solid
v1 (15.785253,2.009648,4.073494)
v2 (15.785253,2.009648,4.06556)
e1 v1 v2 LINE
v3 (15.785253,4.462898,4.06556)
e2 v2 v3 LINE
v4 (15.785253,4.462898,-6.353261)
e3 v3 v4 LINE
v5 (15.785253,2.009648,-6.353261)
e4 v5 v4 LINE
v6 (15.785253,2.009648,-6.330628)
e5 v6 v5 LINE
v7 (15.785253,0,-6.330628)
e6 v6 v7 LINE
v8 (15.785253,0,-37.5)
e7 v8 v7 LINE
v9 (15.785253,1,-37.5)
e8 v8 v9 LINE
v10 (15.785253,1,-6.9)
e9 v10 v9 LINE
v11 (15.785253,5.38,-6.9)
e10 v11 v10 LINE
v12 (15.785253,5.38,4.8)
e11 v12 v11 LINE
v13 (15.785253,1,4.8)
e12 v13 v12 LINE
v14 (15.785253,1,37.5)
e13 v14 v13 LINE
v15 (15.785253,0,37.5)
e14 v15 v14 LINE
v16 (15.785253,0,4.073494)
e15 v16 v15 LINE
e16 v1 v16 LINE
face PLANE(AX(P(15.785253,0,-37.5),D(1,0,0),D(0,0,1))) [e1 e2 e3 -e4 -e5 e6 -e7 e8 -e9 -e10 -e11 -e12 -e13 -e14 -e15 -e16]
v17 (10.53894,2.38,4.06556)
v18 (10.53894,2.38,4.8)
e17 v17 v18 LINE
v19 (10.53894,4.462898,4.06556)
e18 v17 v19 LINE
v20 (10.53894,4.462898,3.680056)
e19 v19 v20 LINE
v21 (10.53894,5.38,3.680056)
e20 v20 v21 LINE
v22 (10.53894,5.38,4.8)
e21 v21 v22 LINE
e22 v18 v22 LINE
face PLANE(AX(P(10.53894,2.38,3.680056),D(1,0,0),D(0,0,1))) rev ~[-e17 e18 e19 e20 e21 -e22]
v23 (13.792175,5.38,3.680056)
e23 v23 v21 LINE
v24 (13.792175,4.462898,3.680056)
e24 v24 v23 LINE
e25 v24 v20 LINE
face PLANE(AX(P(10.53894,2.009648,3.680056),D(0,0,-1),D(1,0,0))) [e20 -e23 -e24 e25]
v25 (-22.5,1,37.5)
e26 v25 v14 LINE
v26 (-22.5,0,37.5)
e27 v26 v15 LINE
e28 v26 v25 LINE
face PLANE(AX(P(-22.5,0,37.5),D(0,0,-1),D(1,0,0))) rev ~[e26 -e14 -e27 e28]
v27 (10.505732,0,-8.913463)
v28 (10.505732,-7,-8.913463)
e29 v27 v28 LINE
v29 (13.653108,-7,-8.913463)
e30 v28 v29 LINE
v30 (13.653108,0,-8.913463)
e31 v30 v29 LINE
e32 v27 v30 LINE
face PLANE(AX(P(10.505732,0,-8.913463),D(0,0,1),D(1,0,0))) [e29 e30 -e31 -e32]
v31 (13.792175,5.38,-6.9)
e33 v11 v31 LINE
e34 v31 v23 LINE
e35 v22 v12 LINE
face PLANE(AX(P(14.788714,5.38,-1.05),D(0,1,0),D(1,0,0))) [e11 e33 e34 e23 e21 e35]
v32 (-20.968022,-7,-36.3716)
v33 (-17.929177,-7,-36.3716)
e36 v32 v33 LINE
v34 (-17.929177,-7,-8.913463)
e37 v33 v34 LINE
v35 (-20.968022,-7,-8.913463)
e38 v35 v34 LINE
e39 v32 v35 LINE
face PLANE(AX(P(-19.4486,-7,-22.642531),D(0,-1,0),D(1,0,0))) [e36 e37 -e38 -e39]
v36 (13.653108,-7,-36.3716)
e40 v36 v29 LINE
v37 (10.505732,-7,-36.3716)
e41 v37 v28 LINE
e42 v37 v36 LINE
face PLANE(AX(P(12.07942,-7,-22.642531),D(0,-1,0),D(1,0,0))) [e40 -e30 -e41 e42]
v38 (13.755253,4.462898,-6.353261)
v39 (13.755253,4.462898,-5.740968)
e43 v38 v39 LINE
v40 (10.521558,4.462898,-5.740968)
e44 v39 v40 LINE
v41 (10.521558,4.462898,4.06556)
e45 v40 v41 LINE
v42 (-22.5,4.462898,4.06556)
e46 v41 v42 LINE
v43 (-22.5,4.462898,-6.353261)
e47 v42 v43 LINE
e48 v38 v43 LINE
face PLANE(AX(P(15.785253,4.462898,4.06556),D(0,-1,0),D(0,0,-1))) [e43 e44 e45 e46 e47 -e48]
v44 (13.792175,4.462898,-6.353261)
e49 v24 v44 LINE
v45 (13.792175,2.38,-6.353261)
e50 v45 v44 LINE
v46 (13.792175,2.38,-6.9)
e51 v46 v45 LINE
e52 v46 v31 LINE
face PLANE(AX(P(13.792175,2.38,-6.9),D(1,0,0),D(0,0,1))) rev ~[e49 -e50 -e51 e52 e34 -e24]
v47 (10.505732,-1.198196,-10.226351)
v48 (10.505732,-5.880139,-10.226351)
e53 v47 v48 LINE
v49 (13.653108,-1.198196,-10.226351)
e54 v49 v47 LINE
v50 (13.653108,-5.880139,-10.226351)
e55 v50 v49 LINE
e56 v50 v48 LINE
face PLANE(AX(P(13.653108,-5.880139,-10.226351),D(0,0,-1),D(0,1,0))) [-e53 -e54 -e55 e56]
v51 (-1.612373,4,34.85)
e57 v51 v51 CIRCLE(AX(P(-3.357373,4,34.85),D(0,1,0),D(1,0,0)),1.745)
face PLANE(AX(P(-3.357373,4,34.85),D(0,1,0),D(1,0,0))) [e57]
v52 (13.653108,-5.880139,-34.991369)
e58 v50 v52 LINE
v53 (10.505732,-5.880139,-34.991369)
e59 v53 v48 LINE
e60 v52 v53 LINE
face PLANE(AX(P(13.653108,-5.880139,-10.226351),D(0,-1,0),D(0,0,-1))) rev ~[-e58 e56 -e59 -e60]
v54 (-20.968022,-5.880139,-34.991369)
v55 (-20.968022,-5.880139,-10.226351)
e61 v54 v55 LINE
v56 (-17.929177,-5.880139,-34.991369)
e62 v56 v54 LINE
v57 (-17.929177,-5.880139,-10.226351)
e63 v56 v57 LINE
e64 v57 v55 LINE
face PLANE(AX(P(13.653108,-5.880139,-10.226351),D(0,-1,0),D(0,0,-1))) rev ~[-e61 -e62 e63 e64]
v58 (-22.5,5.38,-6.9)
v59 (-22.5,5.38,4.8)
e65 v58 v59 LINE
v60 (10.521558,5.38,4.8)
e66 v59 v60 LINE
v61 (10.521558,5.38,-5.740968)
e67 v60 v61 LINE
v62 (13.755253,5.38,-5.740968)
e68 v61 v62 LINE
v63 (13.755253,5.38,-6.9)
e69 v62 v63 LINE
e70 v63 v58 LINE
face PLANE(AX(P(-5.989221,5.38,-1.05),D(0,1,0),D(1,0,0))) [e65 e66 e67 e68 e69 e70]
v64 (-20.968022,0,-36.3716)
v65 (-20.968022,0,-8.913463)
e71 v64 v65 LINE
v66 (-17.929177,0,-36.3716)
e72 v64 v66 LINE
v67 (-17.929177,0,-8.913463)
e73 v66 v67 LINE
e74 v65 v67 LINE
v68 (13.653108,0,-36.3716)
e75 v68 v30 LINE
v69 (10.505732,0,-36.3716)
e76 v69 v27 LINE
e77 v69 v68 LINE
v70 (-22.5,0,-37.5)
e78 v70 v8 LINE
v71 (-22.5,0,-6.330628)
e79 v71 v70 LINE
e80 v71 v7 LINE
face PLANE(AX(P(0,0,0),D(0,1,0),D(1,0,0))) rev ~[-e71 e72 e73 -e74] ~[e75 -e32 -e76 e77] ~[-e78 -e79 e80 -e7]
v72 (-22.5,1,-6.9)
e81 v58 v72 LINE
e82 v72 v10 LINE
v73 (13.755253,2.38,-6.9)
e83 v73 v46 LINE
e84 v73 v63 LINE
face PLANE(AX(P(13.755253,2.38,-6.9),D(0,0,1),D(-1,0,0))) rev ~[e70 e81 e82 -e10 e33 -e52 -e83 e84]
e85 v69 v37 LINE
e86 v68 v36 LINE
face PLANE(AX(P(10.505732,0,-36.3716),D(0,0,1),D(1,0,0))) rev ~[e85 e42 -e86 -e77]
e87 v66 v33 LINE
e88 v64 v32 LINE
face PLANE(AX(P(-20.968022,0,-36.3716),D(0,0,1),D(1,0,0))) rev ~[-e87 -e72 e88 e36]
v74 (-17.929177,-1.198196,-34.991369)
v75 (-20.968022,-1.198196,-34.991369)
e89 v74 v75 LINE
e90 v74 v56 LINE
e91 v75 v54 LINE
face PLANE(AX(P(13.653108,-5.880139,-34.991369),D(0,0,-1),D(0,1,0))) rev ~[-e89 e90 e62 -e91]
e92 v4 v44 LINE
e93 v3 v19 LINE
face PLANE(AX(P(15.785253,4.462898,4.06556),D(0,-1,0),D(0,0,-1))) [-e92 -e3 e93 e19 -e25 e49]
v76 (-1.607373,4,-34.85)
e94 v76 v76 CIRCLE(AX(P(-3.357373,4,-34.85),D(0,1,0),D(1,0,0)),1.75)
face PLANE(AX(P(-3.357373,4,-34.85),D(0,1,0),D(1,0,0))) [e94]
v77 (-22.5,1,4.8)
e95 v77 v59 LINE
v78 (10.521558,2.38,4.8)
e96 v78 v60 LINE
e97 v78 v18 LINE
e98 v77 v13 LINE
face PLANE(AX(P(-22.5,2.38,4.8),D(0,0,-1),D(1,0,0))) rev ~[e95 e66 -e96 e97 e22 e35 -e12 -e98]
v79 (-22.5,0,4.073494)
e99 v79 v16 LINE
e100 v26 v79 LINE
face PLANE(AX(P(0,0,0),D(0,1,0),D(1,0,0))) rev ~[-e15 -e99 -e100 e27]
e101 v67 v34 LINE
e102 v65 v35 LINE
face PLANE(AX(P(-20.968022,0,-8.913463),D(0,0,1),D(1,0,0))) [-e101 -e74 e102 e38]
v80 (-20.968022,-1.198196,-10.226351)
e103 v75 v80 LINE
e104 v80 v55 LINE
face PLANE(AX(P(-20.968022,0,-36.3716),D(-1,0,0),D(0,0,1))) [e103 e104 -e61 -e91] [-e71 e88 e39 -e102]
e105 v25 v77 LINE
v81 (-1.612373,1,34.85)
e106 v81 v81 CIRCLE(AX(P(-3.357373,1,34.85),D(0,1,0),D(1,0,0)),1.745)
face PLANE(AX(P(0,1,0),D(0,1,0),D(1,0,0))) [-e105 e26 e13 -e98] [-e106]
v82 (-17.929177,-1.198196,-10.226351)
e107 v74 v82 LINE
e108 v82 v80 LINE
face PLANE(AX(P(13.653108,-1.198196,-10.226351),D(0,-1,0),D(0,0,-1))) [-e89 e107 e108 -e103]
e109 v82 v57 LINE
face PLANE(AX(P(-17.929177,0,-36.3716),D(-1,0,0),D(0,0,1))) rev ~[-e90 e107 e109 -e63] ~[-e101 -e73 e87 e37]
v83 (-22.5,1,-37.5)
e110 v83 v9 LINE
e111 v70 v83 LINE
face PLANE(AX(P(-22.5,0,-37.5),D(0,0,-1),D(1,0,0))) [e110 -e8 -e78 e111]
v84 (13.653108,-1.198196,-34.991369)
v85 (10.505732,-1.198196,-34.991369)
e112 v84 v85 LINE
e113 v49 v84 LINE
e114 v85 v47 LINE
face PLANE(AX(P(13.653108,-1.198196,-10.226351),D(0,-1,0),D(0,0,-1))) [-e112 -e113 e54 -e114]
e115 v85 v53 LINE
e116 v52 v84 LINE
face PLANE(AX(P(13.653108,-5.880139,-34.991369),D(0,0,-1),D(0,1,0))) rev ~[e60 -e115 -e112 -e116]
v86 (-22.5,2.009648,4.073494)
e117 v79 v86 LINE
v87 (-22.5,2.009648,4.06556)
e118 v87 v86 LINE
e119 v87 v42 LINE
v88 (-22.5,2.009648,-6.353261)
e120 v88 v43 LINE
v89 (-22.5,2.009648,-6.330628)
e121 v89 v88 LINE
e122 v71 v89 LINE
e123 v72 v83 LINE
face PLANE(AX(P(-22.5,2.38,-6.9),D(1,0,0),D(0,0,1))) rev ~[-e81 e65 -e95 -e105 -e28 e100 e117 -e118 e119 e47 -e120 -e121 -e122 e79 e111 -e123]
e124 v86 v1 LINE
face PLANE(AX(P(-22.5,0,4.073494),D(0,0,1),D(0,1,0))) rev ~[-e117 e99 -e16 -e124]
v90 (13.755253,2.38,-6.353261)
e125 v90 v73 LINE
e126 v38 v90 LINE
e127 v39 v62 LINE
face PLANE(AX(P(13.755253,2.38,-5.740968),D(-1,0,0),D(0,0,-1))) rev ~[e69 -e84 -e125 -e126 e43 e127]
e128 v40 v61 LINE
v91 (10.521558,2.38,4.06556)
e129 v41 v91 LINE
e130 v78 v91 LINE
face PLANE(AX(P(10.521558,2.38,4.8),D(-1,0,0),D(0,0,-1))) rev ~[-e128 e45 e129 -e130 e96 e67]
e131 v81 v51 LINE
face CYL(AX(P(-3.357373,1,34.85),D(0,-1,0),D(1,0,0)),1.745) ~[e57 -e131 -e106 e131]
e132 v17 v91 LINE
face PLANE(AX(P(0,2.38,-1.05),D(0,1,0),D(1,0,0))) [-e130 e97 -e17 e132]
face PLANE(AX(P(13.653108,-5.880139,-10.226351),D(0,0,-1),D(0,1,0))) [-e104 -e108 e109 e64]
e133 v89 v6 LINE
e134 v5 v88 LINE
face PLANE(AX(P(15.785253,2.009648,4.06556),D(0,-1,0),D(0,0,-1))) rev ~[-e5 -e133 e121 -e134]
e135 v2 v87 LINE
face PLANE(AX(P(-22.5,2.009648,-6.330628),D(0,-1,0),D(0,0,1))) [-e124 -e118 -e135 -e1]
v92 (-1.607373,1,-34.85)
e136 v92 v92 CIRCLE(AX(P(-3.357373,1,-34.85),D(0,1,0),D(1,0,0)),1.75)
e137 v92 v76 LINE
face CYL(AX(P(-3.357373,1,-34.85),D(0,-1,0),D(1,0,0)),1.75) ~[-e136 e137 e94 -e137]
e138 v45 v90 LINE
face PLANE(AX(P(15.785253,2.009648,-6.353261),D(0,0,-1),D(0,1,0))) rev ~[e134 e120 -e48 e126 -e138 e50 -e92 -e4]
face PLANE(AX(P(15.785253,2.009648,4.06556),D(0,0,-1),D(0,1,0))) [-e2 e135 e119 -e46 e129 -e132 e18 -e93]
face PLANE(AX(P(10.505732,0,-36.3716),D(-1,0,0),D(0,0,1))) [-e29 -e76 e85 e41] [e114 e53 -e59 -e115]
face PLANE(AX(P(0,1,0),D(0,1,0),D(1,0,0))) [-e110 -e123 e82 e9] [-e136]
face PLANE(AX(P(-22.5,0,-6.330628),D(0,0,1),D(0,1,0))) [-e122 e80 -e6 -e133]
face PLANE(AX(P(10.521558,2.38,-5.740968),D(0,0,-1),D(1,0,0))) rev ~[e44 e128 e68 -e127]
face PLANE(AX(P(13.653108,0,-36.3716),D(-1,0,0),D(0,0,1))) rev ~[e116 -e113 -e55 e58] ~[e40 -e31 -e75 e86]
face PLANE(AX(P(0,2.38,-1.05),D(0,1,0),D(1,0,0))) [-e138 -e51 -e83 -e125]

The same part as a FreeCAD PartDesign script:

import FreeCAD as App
import Part
import Sketcher
from FreeCAD import Vector


def add_polygon(sketch, points):
    """Adds a closed chain of lines whose ends are joined by coincident constraints."""
    first, n = sketch.GeometryCount, len(points)
    for a, b in zip(points, points[1:] + points[:1]):
        sketch.addGeometry(Part.LineSegment(App.Vector(*a, 0), App.Vector(*b, 0)), False)
    for i in range(n):
        sketch.addConstraint(Sketcher.Constraint("Coincident", first + i, 2, first + (i + 1) % n, 1))

doc = App.newDocument("Part")
body = doc.addObject("PartDesign::Body", "Body")

# Sketch on XZ plane
sketch1 = doc.addObject("Sketcher::SketchObject", "Sketch")
body.addObject(sketch1)
sketch1.AttachmentSupport = (doc.XZ_Plane, [""])
sketch1.MapMode = "FlatFace"
add_polygon(sketch1, [(-22, -38), (-22, 38), (22, 38), (22, -38)])  # lines 0-3
sketch1.addConstraint(Sketcher.Constraint("Vertical", 0))
sketch1.addConstraint(Sketcher.Constraint("Horizontal", 1))
sketch1.addConstraint(Sketcher.Constraint("Vertical", 2))
sketch1.addConstraint(Sketcher.Constraint("Horizontal", 3))
sketch1.addConstraint(Sketcher.Constraint("Symmetric", 0, 2, 2, 2, -1, 1))
sketch1.addConstraint(Sketcher.Constraint("DistanceX", 1, 1, 1, 2, 45.0))
sketch1.addConstraint(Sketcher.Constraint("DistanceY", 0, 1, 0, 2, 75.0))
pad1 = doc.addObject("PartDesign::Pad", "Pad")
body.addObject(pad1)
pad1.Profile = sketch1
pad1.Length = 1
pad1.Reversed = True

# Sketch on XZ plane
sketch2 = doc.addObject("Sketcher::SketchObject", "Sketch001")
body.addObject(sketch2)
sketch2.AttachmentSupport = (doc.XZ_Plane, [""])
sketch2.MapMode = "FlatFace"
sketch2.AttachmentOffset = App.Placement(Vector(0, 0, -1), App.Rotation())
add_polygon(sketch2, [(-22, -7), (-22, 5), (22, 5), (22, -7)])  # lines 0-3
sketch2.addConstraint(Sketcher.Constraint("Vertical", 0))
sketch2.addConstraint(Sketcher.Constraint("Horizontal", 1))
sketch2.addConstraint(Sketcher.Constraint("Vertical", 2))
sketch2.addConstraint(Sketcher.Constraint("Horizontal", 3))
sketch2.addConstraint(Sketcher.Constraint("DistanceX", 1, 1, 1, 2, 45.0))
sketch2.addConstraint(Sketcher.Constraint("DistanceY", 0, 1, 0, 2, 11.7))
sketch2.addConstraint(Sketcher.Constraint("DistanceX", 0, 2, -1, 1, 22.5))
sketch2.addConstraint(Sketcher.Constraint("DistanceY", -1, 1, 0, 2, 4.8))
pad2 = doc.addObject("PartDesign::Pad", "Pad001")
body.addObject(pad2)
pad2.Profile = sketch2
pad2.Length = 1.38
pad2.Reversed = True

# Sketch on XZ plane
sketch3 = doc.addObject("Sketcher::SketchObject", "Sketch002")
body.addObject(sketch3)
sketch3.AttachmentSupport = (doc.XZ_Plane, [""])
sketch3.MapMode = "FlatFace"
add_polygon(sketch3, [(16, 38), (16, -38), (22, -38), (22, 38)])  # lines 0-3
sketch3.addConstraint(Sketcher.Constraint("Vertical", 0))
sketch3.addConstraint(Sketcher.Constraint("Horizontal", 1))
sketch3.addConstraint(Sketcher.Constraint("Vertical", 2))
sketch3.addConstraint(Sketcher.Constraint("Horizontal", 3))
sketch3.addConstraint(Sketcher.Constraint("DistanceY", 0, 2, 0, 1, 75.0))
sketch3.addConstraint(Sketcher.Constraint("DistanceY", 0, 2, -1, 1, 37.5))
sketch3.addConstraint(Sketcher.Constraint("DistanceX", -1, 1, 1, 2, 22.5))
sketch3.addConstraint(Sketcher.Constraint("DistanceX", 1, 1, 1, 2, 6.714747))
pocket1 = doc.addObject("PartDesign::Pocket", "Pocket")
body.addObject(pocket1)
pocket1.Profile = sketch3
pocket1.Length = 38.3

# Sketch on XZ plane
sketch4 = doc.addObject("Sketcher::SketchObject", "Sketch003")
body.addObject(sketch4)
sketch4.AttachmentSupport = (doc.XZ_Plane, [""])
sketch4.MapMode = "FlatFace"
sketch4.AttachmentOffset = App.Placement(Vector(0, 0, -1), App.Rotation())
sketch4.addGeometry(Part.Circle(Vector(-3.4, -34.9, 0), Vector(0, 0, 1), 1.8), False)
sketch4.addGeometry(Part.Circle(Vector(-3.4, 34.9, 0), Vector(0, 0, 1), 1.7), False)
sketch4.addConstraint(Sketcher.Constraint("Symmetric", 0, 3, 1, 3, -1))
sketch4.addConstraint(Sketcher.Constraint("Diameter", 0, 3.5))
sketch4.addConstraint(Sketcher.Constraint("Diameter", 1, 3.49))
sketch4.addConstraint(Sketcher.Constraint("DistanceY", 0, 3, 1, 3, 69.7))
sketch4.addConstraint(Sketcher.Constraint("DistanceX", 0, 3, -1, 1, 3.357373))
pad3 = doc.addObject("PartDesign::Pad", "Pad002")
body.addObject(pad3)
pad3.Profile = sketch4
pad3.Length = 3
pad3.Reversed = True

# Sketch on YZ plane
sketch5 = doc.addObject("Sketcher::SketchObject", "Sketch004")
body.addObject(sketch5)
sketch5.AttachmentSupport = (doc.YZ_Plane, [""])
sketch5.MapMode = "FlatFace"
sketch5.AttachmentOffset = App.Placement(Vector(0, 0, -22.5), App.Rotation())
add_polygon(sketch5, [(2, -6.3), (0, -6.3), (0, 4.1), (2, 4.1)])  # lines 0-3
sketch5.addConstraint(Sketcher.Constraint("Horizontal", 0))
sketch5.addConstraint(Sketcher.Constraint("Vertical", 1))
sketch5.addConstraint(Sketcher.Constraint("Horizontal", 2))
sketch5.addConstraint(Sketcher.Constraint("Vertical", 3))
sketch5.addConstraint(Sketcher.Constraint("PointOnObject", 0, 2, -2))
sketch5.addConstraint(Sketcher.Constraint("DistanceX", 0, 2, 0, 1, 2.009648))
sketch5.addConstraint(Sketcher.Constraint("DistanceY", 1, 1, 1, 2, 10.404122))
sketch5.addConstraint(Sketcher.Constraint("DistanceY", 0, 2, -1, 1, 6.330628))
pocket2 = doc.addObject("PartDesign::Pocket", "Pocket001")
body.addObject(pocket2)
pocket2.Profile = sketch5
pocket2.Length = 40
pocket2.Reversed = True

# Sketch on XZ plane
sketch6 = doc.addObject("Sketcher::SketchObject", "Sketch005")
body.addObject(sketch6)
sketch6.AttachmentSupport = (doc.XZ_Plane, [""])
sketch6.MapMode = "FlatFace"
sketch6.AttachmentOffset = App.Placement(Vector(0, 0, -2.009648), App.Rotation())
add_polygon(sketch6, [(10.5, 3.7), (10.5, -5.7), (13.8, -5.7), (13.8, 3.7)])  # lines 0-3
sketch6.addConstraint(Sketcher.Constraint("Vertical", 0))
sketch6.addConstraint(Sketcher.Constraint("Horizontal", 1))
sketch6.addConstraint(Sketcher.Constraint("Vertical", 2))
sketch6.addConstraint(Sketcher.Constraint("Horizontal", 3))
sketch6.addConstraint(Sketcher.Constraint("DistanceX", 1, 1, 1, 2, 3.216313))
sketch6.addConstraint(Sketcher.Constraint("DistanceY", 0, 2, 0, 1, 9.421023))
sketch6.addConstraint(Sketcher.Constraint("DistanceX", -1, 1, 0, 2, 10.53894))
sketch6.addConstraint(Sketcher.Constraint("DistanceY", 0, 2, -1, 1, 5.740968))
pocket3 = doc.addObject("PartDesign::Pocket", "Pocket002")
body.addObject(pocket3)
pocket3.Profile = sketch6
pocket3.Length = 10

# Sketch on XZ plane
sketch7 = doc.addObject("Sketcher::SketchObject", "Sketch006")
body.addObject(sketch7)
sketch7.AttachmentSupport = (doc.XZ_Plane, [""])
sketch7.MapMode = "FlatFace"
add_polygon(sketch7, [(10.5, -8.9), (10.5, -36.4), (13.7, -36.4), (13.7, -8.9)])  # lines 0-3
add_polygon(sketch7, [(-21, -8.9), (-21, -36.4), (-17.9, -36.4), (-17.9, -8.9)])  # lines 4-7
sketch7.addConstraint(Sketcher.Constraint("Vertical", 0))
sketch7.addConstraint(Sketcher.Constraint("Horizontal", 1))
sketch7.addConstraint(Sketcher.Constraint("Vertical", 2))
sketch7.addConstraint(Sketcher.Constraint("Horizontal", 3))
sketch7.addConstraint(Sketcher.Constraint("Vertical", 4))
sketch7.addConstraint(Sketcher.Constraint("Horizontal", 5))
sketch7.addConstraint(Sketcher.Constraint("Vertical", 6))
sketch7.addConstraint(Sketcher.Constraint("Horizontal", 7))
sketch7.addConstraint(Sketcher.Constraint("Horizontal", 1, 2, 4, 2))
sketch7.addConstraint(Sketcher.Constraint("Horizontal", 3, 2, 6, 2))
sketch7.addConstraint(Sketcher.Constraint("DistanceY", 0, 2, -1, 1, 36.3716))
sketch7.addConstraint(Sketcher.Constraint("DistanceX", 1, 1, 1, 2, 3.147375))
sketch7.addConstraint(Sketcher.Constraint("DistanceX", 5, 1, 5, 2, 3.038845))
sketch7.addConstraint(Sketcher.Constraint("DistanceY", 0, 2, 0, 1, 27.458137))
sketch7.addConstraint(Sketcher.Constraint("DistanceX", 4, 2, 1, 2, 34.62113))
sketch7.addConstraint(Sketcher.Constraint("DistanceX", -1, 1, 0, 2, 10.505732))
pad4 = doc.addObject("PartDesign::Pad", "Pad003")
body.addObject(pad4)
pad4.Profile = sketch7
pad4.Length = 7

# Sketch on YZ plane
sketch8 = doc.addObject("Sketcher::SketchObject", "Sketch007")
body.addObject(sketch8)
sketch8.AttachmentSupport = (doc.YZ_Plane, [""])
sketch8.MapMode = "FlatFace"
sketch8.AttachmentOffset = App.Placement(Vector(0, 0, 13.653108), App.Rotation())
add_polygon(sketch8, [(-1.2, -10.2), (-5.9, -10.2), (-5.9, -35), (-1.2, -35)])  # lines 0-3
sketch8.addConstraint(Sketcher.Constraint("Horizontal", 0))
sketch8.addConstraint(Sketcher.Constraint("Vertical", 1))
sketch8.addConstraint(Sketcher.Constraint("Horizontal", 2))
sketch8.addConstraint(Sketcher.Constraint("Vertical", 3))
sketch8.addConstraint(Sketcher.Constraint("DistanceY", 1, 2, 1, 1, 24.765018))
sketch8.addConstraint(Sketcher.Constraint("DistanceX", 0, 2, 0, 1, 4.681944))
sketch8.addConstraint(Sketcher.Constraint("DistanceX", 0, 2, -1, 1, 5.880139))
sketch8.addConstraint(Sketcher.Constraint("DistanceY", 0, 2, -1, 1, 10.226351))
pocket4 = doc.addObject("PartDesign::Pocket", "Pocket003")
body.addObject(pocket4)
pocket4.Profile = sketch8
pocket4.Length = 47

# Sketch on XZ plane
sketch9 = doc.addObject("Sketcher::SketchObject", "Sketch008")
body.addObject(sketch9)
sketch9.AttachmentSupport = (doc.XZ_Plane, [""])
sketch9.MapMode = "FlatFace"
sketch9.AttachmentOffset = App.Placement(Vector(0, 0, -2.38), App.Rotation())
add_polygon(sketch9, [(-22.5, -6.9), (-22.5, 4.8), (10.5, 4.8), (10.5, -5.7), (13.8, -5.7), (13.8, -6.9)])  # lines 0-5
add_polygon(sketch9, [(15.8, -6.9), (13.8, -6.9), (13.8, 3.7), (10.5, 3.7), (10.5, 4.8), (15.8, 4.8)])  # lines 6-11
sketch9.addConstraint(Sketcher.Constraint("Vertical", 0))
sketch9.addConstraint(Sketcher.Constraint("Horizontal", 1))
sketch9.addConstraint(Sketcher.Constraint("Vertical", 2))
sketch9.addConstraint(Sketcher.Constraint("Horizontal", 3))
sketch9.addConstraint(Sketcher.Constraint("Vertical", 4))
sketch9.addConstraint(Sketcher.Constraint("Horizontal", 5))
sketch9.addConstraint(Sketcher.Constraint("Horizontal", 6))
sketch9.addConstraint(Sketcher.Constraint("Vertical", 7))
sketch9.addConstraint(Sketcher.Constraint("Horizontal", 8))
sketch9.addConstraint(Sketcher.Constraint("Vertical", 9))
sketch9.addConstraint(Sketcher.Constraint("Horizontal", 10))
sketch9.addConstraint(Sketcher.Constraint("Vertical", 11))
sketch9.addConstraint(Sketcher.Constraint("Horizontal", 5, 2, 6, 2))
sketch9.addConstraint(Sketcher.Constraint("Horizontal", 1, 2, 9, 2))
sketch9.addConstraint(Sketcher.Constraint("DistanceY", 0, 1, 0, 2, 11.7))
sketch9.addConstraint(Sketcher.Constraint("DistanceX", 0, 2, -1, 1, 22.5))
sketch9.addConstraint(Sketcher.Constraint("DistanceY", -1, 1, 0, 2, 4.8))
sketch9.addConstraint(Sketcher.Constraint("DistanceX", 3, 2, 10, 2, 2.03))
sketch9.addConstraint(Sketcher.Constraint("DistanceX", 1, 1, 1, 2, 33.021558))
sketch9.addConstraint(Sketcher.Constraint("DistanceX", 3, 1, 3, 2, 3.233695))
sketch9.addConstraint(Sketcher.Constraint("DistanceX", 6, 2, 6, 1, 1.993078))
sketch9.addConstraint(Sketcher.Constraint("DistanceX", 8, 2, 8, 1, 3.253235))
sketch9.addConstraint(Sketcher.Constraint("DistanceY", 2, 2, 2, 1, 10.540968))
sketch9.addConstraint(Sketcher.Constraint("DistanceY", 7, 1, 7, 2, 10.580056))
pad5 = doc.addObject("PartDesign::Pad", "Pad004")
body.addObject(pad5)
pad5.Profile = sketch9
pad5.Length = 3
pad5.Reversed = True

# Sketch on YZ plane
sketch10 = doc.addObject("Sketcher::SketchObject", "Sketch009")
body.addObject(sketch10)
sketch10.AttachmentSupport = (doc.YZ_Plane, [""])
sketch10.MapMode = "FlatFace"
sketch10.AttachmentOffset = App.Placement(Vector(0, 0, 15.785253), App.Rotation())
add_polygon(sketch10, [(4.5, 4.1), (2, 4.1), (2, -6.4), (4.5, -6.4)])  # lines 0-3
sketch10.addConstraint(Sketcher.Constraint("Horizontal", 0))
sketch10.addConstraint(Sketcher.Constraint("Vertical", 1))
sketch10.addConstraint(Sketcher.Constraint("Horizontal", 2))
sketch10.addConstraint(Sketcher.Constraint("Vertical", 3))
sketch10.addConstraint(Sketcher.Constraint("DistanceX", 0, 2, 0, 1, 2.45325))
sketch10.addConstraint(Sketcher.Constraint("DistanceY", 1, 2, 1, 1, 10.418821))
sketch10.addConstraint(Sketcher.Constraint("DistanceY", -1, 1, 0, 2, 4.06556))
sketch10.addConstraint(Sketcher.Constraint("DistanceX", -1, 1, 0, 2, 2.009648))
pocket5 = doc.addObject("PartDesign::Pocket", "Pocket004")
body.addObject(pocket5)
pocket5.Profile = sketch10
pocket5.Length = 43

doc.recompute()
